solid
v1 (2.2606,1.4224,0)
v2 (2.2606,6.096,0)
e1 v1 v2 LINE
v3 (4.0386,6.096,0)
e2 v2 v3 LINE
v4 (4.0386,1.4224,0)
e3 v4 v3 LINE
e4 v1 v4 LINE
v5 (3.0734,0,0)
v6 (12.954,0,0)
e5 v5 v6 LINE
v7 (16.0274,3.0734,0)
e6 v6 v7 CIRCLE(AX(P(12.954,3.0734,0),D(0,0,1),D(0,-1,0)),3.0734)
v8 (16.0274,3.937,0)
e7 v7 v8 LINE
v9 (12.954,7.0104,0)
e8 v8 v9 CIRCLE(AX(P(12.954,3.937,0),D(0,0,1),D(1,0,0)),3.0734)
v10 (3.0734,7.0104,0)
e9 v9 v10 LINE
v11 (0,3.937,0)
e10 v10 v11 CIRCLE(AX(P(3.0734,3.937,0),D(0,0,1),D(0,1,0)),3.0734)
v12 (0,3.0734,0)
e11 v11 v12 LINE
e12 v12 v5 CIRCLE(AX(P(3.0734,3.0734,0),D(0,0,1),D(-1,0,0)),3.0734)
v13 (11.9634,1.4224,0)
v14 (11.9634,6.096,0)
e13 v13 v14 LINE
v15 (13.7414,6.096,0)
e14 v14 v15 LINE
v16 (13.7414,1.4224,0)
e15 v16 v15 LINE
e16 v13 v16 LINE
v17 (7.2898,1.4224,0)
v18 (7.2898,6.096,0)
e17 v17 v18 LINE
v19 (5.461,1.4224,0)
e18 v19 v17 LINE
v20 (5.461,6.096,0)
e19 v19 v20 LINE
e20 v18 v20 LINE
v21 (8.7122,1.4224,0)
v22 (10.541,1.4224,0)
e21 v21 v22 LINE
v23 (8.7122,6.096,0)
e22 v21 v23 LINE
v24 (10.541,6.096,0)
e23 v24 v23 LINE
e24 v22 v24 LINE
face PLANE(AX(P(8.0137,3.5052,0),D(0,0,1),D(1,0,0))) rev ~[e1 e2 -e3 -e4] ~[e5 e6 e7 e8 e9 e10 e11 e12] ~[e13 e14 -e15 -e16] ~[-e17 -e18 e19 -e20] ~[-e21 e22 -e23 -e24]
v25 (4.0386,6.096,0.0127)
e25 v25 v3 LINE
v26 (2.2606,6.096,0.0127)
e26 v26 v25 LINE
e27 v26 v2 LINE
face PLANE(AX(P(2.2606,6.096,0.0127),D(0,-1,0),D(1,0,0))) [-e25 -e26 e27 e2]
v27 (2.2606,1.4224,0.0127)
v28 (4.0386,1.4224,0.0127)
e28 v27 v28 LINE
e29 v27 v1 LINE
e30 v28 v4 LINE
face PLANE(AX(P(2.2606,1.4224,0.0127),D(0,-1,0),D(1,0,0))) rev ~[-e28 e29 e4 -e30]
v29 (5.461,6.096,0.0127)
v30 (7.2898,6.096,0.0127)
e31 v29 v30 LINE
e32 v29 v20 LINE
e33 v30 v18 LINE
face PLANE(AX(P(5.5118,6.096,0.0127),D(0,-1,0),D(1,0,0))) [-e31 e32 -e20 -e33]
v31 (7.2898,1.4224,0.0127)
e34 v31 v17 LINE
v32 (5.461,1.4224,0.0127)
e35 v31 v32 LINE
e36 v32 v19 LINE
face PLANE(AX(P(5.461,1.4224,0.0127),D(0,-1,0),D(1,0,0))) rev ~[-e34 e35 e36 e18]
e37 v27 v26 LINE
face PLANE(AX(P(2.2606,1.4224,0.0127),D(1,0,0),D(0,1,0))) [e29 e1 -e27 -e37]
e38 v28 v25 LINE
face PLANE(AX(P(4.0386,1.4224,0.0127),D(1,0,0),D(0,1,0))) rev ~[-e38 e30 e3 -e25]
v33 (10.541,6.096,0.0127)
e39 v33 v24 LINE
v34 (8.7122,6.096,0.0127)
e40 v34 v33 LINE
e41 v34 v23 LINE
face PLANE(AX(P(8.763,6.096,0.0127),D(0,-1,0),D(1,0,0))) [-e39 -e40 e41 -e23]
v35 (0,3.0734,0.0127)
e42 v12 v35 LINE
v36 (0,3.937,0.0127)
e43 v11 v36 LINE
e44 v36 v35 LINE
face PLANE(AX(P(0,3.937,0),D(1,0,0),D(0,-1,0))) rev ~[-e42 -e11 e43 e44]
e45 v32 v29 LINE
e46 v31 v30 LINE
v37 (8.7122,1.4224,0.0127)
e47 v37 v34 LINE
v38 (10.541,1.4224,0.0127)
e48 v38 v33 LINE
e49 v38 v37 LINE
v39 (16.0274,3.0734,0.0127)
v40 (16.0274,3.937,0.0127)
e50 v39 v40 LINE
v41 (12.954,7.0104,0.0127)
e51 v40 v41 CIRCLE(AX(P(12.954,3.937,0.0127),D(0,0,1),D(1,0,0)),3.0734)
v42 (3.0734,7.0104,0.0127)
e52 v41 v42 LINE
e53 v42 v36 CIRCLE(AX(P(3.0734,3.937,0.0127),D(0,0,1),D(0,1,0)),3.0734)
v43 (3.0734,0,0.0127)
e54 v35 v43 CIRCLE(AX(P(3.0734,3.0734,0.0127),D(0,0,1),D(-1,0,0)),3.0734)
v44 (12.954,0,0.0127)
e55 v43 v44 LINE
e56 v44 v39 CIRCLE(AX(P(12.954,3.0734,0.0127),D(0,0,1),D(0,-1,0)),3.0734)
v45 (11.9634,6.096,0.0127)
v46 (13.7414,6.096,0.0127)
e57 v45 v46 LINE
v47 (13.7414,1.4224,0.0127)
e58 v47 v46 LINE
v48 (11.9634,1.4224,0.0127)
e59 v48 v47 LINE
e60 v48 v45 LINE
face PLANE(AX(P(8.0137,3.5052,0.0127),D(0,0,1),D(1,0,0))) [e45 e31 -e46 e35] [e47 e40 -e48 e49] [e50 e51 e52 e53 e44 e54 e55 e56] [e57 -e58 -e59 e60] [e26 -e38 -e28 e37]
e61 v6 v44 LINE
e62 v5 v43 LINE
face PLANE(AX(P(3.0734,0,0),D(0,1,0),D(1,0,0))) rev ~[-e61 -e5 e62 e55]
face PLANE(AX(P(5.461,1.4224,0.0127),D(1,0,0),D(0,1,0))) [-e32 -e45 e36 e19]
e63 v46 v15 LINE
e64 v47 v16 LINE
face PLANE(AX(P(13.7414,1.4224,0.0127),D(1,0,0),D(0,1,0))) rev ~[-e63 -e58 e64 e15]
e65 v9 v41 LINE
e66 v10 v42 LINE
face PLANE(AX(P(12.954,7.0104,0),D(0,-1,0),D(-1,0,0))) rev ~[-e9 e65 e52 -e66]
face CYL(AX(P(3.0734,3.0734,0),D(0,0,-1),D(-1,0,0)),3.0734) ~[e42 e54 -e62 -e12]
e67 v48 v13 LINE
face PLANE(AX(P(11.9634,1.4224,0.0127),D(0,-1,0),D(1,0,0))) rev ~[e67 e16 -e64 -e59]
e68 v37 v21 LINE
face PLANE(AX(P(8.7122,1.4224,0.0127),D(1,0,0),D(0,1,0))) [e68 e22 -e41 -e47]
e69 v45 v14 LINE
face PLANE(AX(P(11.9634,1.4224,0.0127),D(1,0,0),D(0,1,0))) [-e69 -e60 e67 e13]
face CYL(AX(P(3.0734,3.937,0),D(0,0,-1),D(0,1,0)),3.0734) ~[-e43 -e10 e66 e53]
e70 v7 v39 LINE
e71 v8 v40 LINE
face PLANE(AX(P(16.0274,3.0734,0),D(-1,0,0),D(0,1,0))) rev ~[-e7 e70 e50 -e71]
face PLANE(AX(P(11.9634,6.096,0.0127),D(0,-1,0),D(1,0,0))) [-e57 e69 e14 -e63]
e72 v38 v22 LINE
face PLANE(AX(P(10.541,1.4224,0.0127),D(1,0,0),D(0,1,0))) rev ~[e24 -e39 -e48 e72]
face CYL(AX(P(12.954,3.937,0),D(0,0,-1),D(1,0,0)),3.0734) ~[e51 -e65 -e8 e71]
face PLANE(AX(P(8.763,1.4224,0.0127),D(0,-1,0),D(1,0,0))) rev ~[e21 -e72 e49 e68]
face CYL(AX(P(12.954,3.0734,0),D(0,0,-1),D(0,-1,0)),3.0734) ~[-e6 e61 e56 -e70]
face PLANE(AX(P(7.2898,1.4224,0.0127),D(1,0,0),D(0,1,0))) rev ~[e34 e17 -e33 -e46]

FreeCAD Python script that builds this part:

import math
import FreeCAD as App
import Part
import Sketcher
Q = App.Units.Quantity


def add_polygon(sketch, points):
    """Adds a closed chain of lines whose ends are joined by coincident constraints."""
    first, n = sketch.GeometryCount, len(points)
    for a, b in zip(points, points[1:] + points[:1]):
        sketch.addGeometry(Part.LineSegment(App.Vector(*a, 0), App.Vector(*b, 0)), False)
    for i in range(n):
        sketch.addConstraint(Sketcher.Constraint("Coincident", first + i, 2, first + (i + 1) % n, 1))

doc = App.newDocument("Part")
body = doc.addObject("PartDesign::Body", "Body")

sketch1 = body.newObject("Sketcher::SketchObject", "Sketch")
sketch1.AttachmentSupport = (doc.getObject("XY_Plane"), [""])
sketch1.MapMode = "FlatFace"
sketch1.addGeometry([
    Part.LineSegment(App.Vector(3.0734, 0, 0), App.Vector(12.954, 0, 0)),
    Part.ArcOfCircle(Part.Circle(App.Vector(12.954, 3.0734, 0), App.Vector(0, 0, 1), 3.0734), math.radians(-90), math.radians(0)),
    Part.LineSegment(App.Vector(16.0274, 3.0734, 0), App.Vector(16.0274, 3.937, 0)),
    Part.ArcOfCircle(Part.Circle(App.Vector(12.954, 3.937, 0), App.Vector(0, 0, 1), 3.0734), math.radians(0), math.radians(90)),
    Part.LineSegment(App.Vector(12.954, 7.0104, 0), App.Vector(3.0734, 7.0104, 0)),
    Part.ArcOfCircle(Part.Circle(App.Vector(3.0734, 3.937, 0), App.Vector(0, 0, 1), 3.0734), math.radians(90), math.radians(180)),
    Part.LineSegment(App.Vector(0, 3.937, 0), App.Vector(0, 3.0734, 0)),
    Part.ArcOfCircle(Part.Circle(App.Vector(3.0734, 3.0734, 0), App.Vector(0, 0, 1), 3.0734), math.radians(-180), math.radians(-90)),
], False)
sketch1.addConstraint([
    Sketcher.Constraint("Tangent", 0, 2, 1, 1),
    Sketcher.Constraint("Tangent", 1, 2, 2, 1),
    Sketcher.Constraint("Tangent", 2, 2, 3, 1),
    Sketcher.Constraint("Tangent", 3, 2, 4, 1),
    Sketcher.Constraint("Tangent", 4, 2, 5, 1),
    Sketcher.Constraint("Tangent", 5, 2, 6, 1),
    Sketcher.Constraint("Tangent", 6, 2, 7, 1),
    Sketcher.Constraint("Tangent", 7, 2, 0, 1),
    Sketcher.Constraint("Horizontal", 0),
    Sketcher.Constraint("Vertical", 2),
    Sketcher.Constraint("Horizontal", 4),
    Sketcher.Constraint("Vertical", 6),
    Sketcher.Constraint("Equal", 1, 3),
    Sketcher.Constraint("Equal", 3, 5),
    Sketcher.Constraint("Equal", 5, 7),
    Sketcher.Constraint("PointOnObject", 0, 2, -1),
    Sketcher.Constraint("PointOnObject", 5, 2, -2),
    Sketcher.Constraint("Radius", 1, Q("0.121 in")),
    Sketcher.Constraint("DistanceX", 0, 1, 0, 2, Q("0.389 in")),
    Sketcher.Constraint("DistanceY", 2, 1, 2, 2, Q("0.034 in")),
])
pad1 = body.newObject("PartDesign::Pad", "Pad")
pad1.Profile = sketch1
pad1.Length = Q("0.0005 in")

sketch2 = body.newObject("Sketcher::SketchObject", "Sketch001")
sketch2.AttachmentSupport = (doc.getObject("XY_Plane"), [""])
sketch2.MapMode = "FlatFace"
sketch2.AttachmentOffset = App.Placement(App.Vector(0, 0, 0.0005 * 25.4), App.Rotation())
add_polygon(sketch2, [(2.2606, 6.096), (2.2606, 1.4224), (4.0386, 1.4224), (4.0386, 6.096)])
sketch2.addConstraint([
    Sketcher.Constraint("Vertical", 0),
    Sketcher.Constraint("Horizontal", 1),
    Sketcher.Constraint("Vertical", 2),
    Sketcher.Constraint("Horizontal", 3),
    Sketcher.Constraint("DistanceX", 1, 1, 1, 2, Q("0.07 in")),
    Sketcher.Constraint("DistanceY", 0, 2, 0, 1, Q("0.184 in")),
    Sketcher.Constraint("DistanceY", -1, 1, 2, 2, Q("0.24 in")),
    Sketcher.Constraint("DistanceX", -1, 1, 0, 2, Q("0.089 in")),
])
pocket1 = body.newObject("PartDesign::Pocket", "Pocket")
pocket1.Profile = sketch2
pocket1.Type = "ThroughAll"
doc.recompute()

linearpattern = body.newObject("PartDesign::LinearPattern", "LinearPattern")
linearpattern.Originals = [pocket1]
linearpattern.Direction = (doc.getObject("X_Axis"), [""])
linearpattern.Mode = "offset"
linearpattern.Offset = Q("0.126 in")
linearpattern.Occurrences = 2
body.Tip = linearpattern
doc.recompute()

linearpattern2 = body.newObject("PartDesign::LinearPattern", "LinearPattern001")
linearpattern2.Originals = [pocket1]
linearpattern2.Direction = (doc.getObject("X_Axis"), [""])
linearpattern2.Mode = "offset"
linearpattern2.Offset = Q("0.128 in")
linearpattern2.Occurrences = 3
body.Tip = linearpattern2

sketch3 = body.newObject("Sketcher::SketchObject", "Sketch002")
sketch3.AttachmentSupport = (doc.getObject("XY_Plane"), [""])
sketch3.MapMode = "FlatFace"
sketch3.AttachmentOffset = App.Placement(App.Vector(0, 0, 0.0005 * 25.4), App.Rotation())
add_polygon(sketch3, [(8.7122, 6.096), (8.7122, 1.4224), (10.4902, 1.4224), (10.4902, 6.096)])
sketch3.addConstraint([
    Sketcher.Constraint("Vertical", 0),
    Sketcher.Constraint("Horizontal", 1),
    Sketcher.Constraint("Vertical", 2),
    Sketcher.Constraint("Horizontal", 3),
    Sketcher.Constraint("DistanceX", 1, 1, 1, 2, Q("0.07 in")),
    Sketcher.Constraint("DistanceY", 0, 2, 0, 1, Q("0.184 in")),
    Sketcher.Constraint("DistanceY", -1, 1, 2, 2, Q("0.24 in")),
    Sketcher.Constraint("DistanceX", -1, 1, 0, 2, Q("0.343 in")),
])
pocket2 = body.newObject("PartDesign::Pocket", "Pocket001")
pocket2.Profile = sketch3
pocket2.Type = "ThroughAll"

sketch4 = body.newObject("Sketcher::SketchObject", "Sketch003")
sketch4.AttachmentSupport = (doc.getObject("XY_Plane"), [""])
sketch4.MapMode = "FlatFace"
sketch4.AttachmentOffset = App.Placement(App.Vector(0, 0, 0.0005 * 25.4), App.Rotation())
add_polygon(sketch4, [(11.9634, 6.096), (11.9634, 1.4224), (13.7414, 1.4224), (13.7414, 6.096)])
sketch4.addConstraint([
    Sketcher.Constraint("Vertical", 0),
    Sketcher.Constraint("Horizontal", 1),
    Sketcher.Constraint("Vertical", 2),
    Sketcher.Constraint("Horizontal", 3),
    Sketcher.Constraint("DistanceX", 1, 1, 1, 2, Q("0.07 in")),
    Sketcher.Constraint("DistanceY", 0, 2, 0, 1, Q("0.184 in")),
    Sketcher.Constraint("DistanceY", -1, 1, 2, 2, Q("0.24 in")),
    Sketcher.Constraint("DistanceX", -1, 1, 0, 2, Q("0.471 in")),
])
pocket3 = body.newObject("PartDesign::Pocket", "Pocket002")
pocket3.Profile = sketch4
pocket3.Type = "ThroughAll"

doc.recompute()
